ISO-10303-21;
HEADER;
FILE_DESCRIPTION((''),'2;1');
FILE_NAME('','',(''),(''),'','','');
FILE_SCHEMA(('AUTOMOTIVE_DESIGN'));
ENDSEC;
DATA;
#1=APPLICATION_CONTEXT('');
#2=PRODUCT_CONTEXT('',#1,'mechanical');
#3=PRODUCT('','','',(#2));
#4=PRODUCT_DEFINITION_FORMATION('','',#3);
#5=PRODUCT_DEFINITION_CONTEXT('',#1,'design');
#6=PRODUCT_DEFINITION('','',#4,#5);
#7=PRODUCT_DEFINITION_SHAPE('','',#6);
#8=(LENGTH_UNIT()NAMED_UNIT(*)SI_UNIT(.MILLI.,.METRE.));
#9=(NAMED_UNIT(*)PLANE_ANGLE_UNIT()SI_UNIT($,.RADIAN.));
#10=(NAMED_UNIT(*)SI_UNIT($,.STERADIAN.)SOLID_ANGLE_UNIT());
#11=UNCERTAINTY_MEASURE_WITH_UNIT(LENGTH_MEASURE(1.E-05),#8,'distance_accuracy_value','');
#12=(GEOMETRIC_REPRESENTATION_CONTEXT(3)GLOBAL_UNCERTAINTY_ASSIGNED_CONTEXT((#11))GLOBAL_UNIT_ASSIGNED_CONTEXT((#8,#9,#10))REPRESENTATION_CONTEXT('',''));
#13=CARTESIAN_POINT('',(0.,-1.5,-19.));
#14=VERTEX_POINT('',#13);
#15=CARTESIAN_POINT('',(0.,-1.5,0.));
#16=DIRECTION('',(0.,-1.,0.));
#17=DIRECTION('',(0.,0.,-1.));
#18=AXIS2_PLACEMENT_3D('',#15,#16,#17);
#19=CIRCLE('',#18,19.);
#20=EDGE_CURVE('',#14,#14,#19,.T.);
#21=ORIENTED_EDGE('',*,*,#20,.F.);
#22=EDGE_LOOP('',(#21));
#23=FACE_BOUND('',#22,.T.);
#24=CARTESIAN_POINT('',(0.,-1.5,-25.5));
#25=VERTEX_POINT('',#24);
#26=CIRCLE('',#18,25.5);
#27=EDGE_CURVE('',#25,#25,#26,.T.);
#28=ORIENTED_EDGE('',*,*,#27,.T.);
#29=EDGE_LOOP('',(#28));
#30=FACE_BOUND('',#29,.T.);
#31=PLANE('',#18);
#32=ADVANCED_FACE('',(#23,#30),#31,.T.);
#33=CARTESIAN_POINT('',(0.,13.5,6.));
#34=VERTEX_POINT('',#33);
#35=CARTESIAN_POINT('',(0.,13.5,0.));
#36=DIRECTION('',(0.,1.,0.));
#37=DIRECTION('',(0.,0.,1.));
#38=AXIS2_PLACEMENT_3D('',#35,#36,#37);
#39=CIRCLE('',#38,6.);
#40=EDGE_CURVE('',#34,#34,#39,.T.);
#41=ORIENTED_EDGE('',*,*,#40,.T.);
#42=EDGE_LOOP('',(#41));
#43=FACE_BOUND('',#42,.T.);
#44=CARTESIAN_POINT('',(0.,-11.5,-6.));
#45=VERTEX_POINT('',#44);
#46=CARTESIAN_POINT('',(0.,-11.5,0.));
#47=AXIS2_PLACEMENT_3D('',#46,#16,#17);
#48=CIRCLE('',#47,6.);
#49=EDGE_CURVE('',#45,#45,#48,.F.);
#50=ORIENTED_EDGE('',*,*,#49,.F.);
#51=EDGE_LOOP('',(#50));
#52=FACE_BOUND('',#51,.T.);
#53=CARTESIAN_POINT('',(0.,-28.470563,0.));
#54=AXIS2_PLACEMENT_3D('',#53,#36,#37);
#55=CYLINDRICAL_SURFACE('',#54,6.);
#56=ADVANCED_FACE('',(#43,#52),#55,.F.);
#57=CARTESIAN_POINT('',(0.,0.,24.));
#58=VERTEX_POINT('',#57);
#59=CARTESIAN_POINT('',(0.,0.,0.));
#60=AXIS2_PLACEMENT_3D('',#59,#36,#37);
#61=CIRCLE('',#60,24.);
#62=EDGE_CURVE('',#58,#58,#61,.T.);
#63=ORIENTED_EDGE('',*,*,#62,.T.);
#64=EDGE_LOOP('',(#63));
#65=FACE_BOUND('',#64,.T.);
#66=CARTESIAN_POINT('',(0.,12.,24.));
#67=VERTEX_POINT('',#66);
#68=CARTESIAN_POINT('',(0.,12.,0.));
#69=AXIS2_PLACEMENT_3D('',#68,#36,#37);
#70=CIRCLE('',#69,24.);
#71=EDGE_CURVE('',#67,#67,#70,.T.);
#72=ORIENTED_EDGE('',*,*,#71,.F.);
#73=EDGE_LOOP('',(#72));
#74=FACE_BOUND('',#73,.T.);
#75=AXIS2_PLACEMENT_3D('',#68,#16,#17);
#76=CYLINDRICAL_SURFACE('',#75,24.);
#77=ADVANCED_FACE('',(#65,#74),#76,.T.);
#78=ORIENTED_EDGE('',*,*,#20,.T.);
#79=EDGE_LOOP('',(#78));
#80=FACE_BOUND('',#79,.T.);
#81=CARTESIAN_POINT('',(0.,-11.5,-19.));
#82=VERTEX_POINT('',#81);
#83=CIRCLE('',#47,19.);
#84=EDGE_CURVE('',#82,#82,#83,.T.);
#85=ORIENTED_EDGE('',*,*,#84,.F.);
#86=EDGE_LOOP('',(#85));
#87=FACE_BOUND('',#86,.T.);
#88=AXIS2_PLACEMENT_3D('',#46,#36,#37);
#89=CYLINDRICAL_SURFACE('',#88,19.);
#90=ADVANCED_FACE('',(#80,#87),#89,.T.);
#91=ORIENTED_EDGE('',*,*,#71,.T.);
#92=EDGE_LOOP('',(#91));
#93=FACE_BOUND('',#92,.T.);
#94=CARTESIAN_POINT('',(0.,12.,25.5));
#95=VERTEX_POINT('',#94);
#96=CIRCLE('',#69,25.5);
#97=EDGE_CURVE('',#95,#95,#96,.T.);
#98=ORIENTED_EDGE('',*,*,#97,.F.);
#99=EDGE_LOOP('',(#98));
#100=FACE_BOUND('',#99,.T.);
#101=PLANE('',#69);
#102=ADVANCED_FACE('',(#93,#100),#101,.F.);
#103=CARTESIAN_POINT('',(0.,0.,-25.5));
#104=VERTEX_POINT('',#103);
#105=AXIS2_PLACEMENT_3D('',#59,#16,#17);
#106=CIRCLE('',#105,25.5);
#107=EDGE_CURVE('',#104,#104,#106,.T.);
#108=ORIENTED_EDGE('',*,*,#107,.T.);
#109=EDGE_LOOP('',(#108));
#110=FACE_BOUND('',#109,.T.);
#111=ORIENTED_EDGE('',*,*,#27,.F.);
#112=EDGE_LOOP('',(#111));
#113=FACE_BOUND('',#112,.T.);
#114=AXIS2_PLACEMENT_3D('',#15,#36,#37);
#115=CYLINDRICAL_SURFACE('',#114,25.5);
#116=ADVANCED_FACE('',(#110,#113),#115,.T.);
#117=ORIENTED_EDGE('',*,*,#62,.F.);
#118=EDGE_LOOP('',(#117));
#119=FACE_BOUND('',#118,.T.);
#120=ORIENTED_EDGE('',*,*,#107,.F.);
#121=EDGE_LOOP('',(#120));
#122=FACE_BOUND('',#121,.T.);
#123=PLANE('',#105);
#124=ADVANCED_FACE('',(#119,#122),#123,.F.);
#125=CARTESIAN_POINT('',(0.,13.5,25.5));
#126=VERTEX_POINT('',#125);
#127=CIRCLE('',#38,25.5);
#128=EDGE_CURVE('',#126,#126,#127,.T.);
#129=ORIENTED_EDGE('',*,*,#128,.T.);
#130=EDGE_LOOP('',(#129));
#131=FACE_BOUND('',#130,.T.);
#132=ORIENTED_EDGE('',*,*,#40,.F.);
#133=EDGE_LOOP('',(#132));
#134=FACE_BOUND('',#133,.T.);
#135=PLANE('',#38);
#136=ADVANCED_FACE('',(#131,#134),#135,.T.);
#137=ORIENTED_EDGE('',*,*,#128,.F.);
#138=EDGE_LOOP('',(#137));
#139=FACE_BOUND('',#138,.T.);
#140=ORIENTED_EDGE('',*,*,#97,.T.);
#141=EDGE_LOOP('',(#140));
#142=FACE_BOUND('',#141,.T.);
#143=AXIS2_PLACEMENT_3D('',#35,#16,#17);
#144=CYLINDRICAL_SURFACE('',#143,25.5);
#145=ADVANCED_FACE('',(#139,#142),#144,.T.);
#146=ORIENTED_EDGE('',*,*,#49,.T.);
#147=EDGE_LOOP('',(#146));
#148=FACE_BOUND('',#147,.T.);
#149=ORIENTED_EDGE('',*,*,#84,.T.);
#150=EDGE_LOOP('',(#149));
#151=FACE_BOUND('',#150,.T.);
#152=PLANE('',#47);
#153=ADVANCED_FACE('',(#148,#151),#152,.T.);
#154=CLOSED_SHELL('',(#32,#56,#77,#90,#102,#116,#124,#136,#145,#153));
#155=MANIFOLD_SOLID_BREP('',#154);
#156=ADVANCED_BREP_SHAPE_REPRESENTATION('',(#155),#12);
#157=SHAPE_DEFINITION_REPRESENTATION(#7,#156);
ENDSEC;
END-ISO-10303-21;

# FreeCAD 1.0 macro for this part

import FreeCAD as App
import Part
import Sketcher
from FreeCAD import Vector

doc = App.newDocument("Part")
body = doc.addObject("PartDesign::Body", "Body")

sketch1 = body.newObject("Sketcher::SketchObject", "Sketch")
sketch1.AttachmentSupport = (doc.getObject("XZ_Plane"), [""])
sketch1.MapMode = "FlatFace"
sketch1.addGeometry(Part.Circle(Vector(0, 0, 0), Vector(0, 0, 1), 24), False)
sketch1.addConstraint([
    Sketcher.Constraint("Coincident", 0, 3, -1, 1),
    Sketcher.Constraint("Diameter", 0, 48.0),
])
pad1 = body.newObject("PartDesign::Pad", "Pad")
pad1.Profile = sketch1
pad1.Length = 12
pad1.Reversed = True

sketch2 = body.newObject("Sketcher::SketchObject", "Sketch001")
sketch2.AttachmentSupport = (doc.getObject("XZ_Plane"), [""])
sketch2.MapMode = "FlatFace"
sketch2.AttachmentOffset = App.Placement(Vector(0, 0, -12), App.Rotation())
sketch2.addGeometry(Part.Circle(Vector(0, 0, 0), Vector(0, 0, 1), 26), False)
sketch2.addConstraint([
    Sketcher.Constraint("Coincident", 0, 3, -1, 1),
    Sketcher.Constraint("Diameter", 0, 51.0),
])
pad2 = body.newObject("PartDesign::Pad", "Pad001")
pad2.Profile = sketch2
pad2.Length = 1.5
pad2.Reversed = True

sketch3 = body.newObject("Sketcher::SketchObject", "Sketch002")
sketch3.AttachmentSupport = (doc.getObject("XZ_Plane"), [""])
sketch3.MapMode = "FlatFace"
sketch3.addGeometry(Part.Circle(Vector(0, 0, 0), Vector(0, 0, 1), 26), False)
sketch3.addConstraint([
    Sketcher.Constraint("Coincident", 0, 3, -1, 1),
    Sketcher.Constraint("Diameter", 0, 51.0),
])
pad3 = body.newObject("PartDesign::Pad", "Pad002")
pad3.Profile = sketch3
pad3.Length = 1.5

sketch4 = body.newObject("Sketcher::SketchObject", "Sketch003")
sketch4.AttachmentSupport = (doc.getObject("XZ_Plane"), [""])
sketch4.MapMode = "FlatFace"
sketch4.AttachmentOffset = App.Placement(Vector(0, 0, 1.5), App.Rotation())
sketch4.addGeometry(Part.Circle(Vector(0, 0, 0), Vector(0, 0, 1), 19), False)
sketch4.addConstraint([
    Sketcher.Constraint("Coincident", 0, 3, -1, 1),
    Sketcher.Constraint("Diameter", 0, 38.0),
])
pad4 = body.newObject("PartDesign::Pad", "Pad003")
pad4.Profile = sketch4
pad4.Length = 10

sketch5 = body.newObject("Sketcher::SketchObject", "Sketch004")
sketch5.AttachmentSupport = (doc.getObject("XZ_Plane"), [""])
sketch5.MapMode = "FlatFace"
sketch5.AttachmentOffset = App.Placement(Vector(0, 0, -13.5), App.Rotation())
sketch5.addGeometry(Part.Circle(Vector(0, 0, 0), Vector(0, 0, 1), 6), False)
sketch5.addConstraint([
    Sketcher.Constraint("Coincident", 0, 3, -1, 1),
    Sketcher.Constraint("Diameter", 0, 12.0),
])
pocket1 = body.newObject("PartDesign::Pocket", "Pocket")
pocket1.Profile = sketch5
pocket1.Length = 25
pocket1.Reversed = True

doc.recompute()
